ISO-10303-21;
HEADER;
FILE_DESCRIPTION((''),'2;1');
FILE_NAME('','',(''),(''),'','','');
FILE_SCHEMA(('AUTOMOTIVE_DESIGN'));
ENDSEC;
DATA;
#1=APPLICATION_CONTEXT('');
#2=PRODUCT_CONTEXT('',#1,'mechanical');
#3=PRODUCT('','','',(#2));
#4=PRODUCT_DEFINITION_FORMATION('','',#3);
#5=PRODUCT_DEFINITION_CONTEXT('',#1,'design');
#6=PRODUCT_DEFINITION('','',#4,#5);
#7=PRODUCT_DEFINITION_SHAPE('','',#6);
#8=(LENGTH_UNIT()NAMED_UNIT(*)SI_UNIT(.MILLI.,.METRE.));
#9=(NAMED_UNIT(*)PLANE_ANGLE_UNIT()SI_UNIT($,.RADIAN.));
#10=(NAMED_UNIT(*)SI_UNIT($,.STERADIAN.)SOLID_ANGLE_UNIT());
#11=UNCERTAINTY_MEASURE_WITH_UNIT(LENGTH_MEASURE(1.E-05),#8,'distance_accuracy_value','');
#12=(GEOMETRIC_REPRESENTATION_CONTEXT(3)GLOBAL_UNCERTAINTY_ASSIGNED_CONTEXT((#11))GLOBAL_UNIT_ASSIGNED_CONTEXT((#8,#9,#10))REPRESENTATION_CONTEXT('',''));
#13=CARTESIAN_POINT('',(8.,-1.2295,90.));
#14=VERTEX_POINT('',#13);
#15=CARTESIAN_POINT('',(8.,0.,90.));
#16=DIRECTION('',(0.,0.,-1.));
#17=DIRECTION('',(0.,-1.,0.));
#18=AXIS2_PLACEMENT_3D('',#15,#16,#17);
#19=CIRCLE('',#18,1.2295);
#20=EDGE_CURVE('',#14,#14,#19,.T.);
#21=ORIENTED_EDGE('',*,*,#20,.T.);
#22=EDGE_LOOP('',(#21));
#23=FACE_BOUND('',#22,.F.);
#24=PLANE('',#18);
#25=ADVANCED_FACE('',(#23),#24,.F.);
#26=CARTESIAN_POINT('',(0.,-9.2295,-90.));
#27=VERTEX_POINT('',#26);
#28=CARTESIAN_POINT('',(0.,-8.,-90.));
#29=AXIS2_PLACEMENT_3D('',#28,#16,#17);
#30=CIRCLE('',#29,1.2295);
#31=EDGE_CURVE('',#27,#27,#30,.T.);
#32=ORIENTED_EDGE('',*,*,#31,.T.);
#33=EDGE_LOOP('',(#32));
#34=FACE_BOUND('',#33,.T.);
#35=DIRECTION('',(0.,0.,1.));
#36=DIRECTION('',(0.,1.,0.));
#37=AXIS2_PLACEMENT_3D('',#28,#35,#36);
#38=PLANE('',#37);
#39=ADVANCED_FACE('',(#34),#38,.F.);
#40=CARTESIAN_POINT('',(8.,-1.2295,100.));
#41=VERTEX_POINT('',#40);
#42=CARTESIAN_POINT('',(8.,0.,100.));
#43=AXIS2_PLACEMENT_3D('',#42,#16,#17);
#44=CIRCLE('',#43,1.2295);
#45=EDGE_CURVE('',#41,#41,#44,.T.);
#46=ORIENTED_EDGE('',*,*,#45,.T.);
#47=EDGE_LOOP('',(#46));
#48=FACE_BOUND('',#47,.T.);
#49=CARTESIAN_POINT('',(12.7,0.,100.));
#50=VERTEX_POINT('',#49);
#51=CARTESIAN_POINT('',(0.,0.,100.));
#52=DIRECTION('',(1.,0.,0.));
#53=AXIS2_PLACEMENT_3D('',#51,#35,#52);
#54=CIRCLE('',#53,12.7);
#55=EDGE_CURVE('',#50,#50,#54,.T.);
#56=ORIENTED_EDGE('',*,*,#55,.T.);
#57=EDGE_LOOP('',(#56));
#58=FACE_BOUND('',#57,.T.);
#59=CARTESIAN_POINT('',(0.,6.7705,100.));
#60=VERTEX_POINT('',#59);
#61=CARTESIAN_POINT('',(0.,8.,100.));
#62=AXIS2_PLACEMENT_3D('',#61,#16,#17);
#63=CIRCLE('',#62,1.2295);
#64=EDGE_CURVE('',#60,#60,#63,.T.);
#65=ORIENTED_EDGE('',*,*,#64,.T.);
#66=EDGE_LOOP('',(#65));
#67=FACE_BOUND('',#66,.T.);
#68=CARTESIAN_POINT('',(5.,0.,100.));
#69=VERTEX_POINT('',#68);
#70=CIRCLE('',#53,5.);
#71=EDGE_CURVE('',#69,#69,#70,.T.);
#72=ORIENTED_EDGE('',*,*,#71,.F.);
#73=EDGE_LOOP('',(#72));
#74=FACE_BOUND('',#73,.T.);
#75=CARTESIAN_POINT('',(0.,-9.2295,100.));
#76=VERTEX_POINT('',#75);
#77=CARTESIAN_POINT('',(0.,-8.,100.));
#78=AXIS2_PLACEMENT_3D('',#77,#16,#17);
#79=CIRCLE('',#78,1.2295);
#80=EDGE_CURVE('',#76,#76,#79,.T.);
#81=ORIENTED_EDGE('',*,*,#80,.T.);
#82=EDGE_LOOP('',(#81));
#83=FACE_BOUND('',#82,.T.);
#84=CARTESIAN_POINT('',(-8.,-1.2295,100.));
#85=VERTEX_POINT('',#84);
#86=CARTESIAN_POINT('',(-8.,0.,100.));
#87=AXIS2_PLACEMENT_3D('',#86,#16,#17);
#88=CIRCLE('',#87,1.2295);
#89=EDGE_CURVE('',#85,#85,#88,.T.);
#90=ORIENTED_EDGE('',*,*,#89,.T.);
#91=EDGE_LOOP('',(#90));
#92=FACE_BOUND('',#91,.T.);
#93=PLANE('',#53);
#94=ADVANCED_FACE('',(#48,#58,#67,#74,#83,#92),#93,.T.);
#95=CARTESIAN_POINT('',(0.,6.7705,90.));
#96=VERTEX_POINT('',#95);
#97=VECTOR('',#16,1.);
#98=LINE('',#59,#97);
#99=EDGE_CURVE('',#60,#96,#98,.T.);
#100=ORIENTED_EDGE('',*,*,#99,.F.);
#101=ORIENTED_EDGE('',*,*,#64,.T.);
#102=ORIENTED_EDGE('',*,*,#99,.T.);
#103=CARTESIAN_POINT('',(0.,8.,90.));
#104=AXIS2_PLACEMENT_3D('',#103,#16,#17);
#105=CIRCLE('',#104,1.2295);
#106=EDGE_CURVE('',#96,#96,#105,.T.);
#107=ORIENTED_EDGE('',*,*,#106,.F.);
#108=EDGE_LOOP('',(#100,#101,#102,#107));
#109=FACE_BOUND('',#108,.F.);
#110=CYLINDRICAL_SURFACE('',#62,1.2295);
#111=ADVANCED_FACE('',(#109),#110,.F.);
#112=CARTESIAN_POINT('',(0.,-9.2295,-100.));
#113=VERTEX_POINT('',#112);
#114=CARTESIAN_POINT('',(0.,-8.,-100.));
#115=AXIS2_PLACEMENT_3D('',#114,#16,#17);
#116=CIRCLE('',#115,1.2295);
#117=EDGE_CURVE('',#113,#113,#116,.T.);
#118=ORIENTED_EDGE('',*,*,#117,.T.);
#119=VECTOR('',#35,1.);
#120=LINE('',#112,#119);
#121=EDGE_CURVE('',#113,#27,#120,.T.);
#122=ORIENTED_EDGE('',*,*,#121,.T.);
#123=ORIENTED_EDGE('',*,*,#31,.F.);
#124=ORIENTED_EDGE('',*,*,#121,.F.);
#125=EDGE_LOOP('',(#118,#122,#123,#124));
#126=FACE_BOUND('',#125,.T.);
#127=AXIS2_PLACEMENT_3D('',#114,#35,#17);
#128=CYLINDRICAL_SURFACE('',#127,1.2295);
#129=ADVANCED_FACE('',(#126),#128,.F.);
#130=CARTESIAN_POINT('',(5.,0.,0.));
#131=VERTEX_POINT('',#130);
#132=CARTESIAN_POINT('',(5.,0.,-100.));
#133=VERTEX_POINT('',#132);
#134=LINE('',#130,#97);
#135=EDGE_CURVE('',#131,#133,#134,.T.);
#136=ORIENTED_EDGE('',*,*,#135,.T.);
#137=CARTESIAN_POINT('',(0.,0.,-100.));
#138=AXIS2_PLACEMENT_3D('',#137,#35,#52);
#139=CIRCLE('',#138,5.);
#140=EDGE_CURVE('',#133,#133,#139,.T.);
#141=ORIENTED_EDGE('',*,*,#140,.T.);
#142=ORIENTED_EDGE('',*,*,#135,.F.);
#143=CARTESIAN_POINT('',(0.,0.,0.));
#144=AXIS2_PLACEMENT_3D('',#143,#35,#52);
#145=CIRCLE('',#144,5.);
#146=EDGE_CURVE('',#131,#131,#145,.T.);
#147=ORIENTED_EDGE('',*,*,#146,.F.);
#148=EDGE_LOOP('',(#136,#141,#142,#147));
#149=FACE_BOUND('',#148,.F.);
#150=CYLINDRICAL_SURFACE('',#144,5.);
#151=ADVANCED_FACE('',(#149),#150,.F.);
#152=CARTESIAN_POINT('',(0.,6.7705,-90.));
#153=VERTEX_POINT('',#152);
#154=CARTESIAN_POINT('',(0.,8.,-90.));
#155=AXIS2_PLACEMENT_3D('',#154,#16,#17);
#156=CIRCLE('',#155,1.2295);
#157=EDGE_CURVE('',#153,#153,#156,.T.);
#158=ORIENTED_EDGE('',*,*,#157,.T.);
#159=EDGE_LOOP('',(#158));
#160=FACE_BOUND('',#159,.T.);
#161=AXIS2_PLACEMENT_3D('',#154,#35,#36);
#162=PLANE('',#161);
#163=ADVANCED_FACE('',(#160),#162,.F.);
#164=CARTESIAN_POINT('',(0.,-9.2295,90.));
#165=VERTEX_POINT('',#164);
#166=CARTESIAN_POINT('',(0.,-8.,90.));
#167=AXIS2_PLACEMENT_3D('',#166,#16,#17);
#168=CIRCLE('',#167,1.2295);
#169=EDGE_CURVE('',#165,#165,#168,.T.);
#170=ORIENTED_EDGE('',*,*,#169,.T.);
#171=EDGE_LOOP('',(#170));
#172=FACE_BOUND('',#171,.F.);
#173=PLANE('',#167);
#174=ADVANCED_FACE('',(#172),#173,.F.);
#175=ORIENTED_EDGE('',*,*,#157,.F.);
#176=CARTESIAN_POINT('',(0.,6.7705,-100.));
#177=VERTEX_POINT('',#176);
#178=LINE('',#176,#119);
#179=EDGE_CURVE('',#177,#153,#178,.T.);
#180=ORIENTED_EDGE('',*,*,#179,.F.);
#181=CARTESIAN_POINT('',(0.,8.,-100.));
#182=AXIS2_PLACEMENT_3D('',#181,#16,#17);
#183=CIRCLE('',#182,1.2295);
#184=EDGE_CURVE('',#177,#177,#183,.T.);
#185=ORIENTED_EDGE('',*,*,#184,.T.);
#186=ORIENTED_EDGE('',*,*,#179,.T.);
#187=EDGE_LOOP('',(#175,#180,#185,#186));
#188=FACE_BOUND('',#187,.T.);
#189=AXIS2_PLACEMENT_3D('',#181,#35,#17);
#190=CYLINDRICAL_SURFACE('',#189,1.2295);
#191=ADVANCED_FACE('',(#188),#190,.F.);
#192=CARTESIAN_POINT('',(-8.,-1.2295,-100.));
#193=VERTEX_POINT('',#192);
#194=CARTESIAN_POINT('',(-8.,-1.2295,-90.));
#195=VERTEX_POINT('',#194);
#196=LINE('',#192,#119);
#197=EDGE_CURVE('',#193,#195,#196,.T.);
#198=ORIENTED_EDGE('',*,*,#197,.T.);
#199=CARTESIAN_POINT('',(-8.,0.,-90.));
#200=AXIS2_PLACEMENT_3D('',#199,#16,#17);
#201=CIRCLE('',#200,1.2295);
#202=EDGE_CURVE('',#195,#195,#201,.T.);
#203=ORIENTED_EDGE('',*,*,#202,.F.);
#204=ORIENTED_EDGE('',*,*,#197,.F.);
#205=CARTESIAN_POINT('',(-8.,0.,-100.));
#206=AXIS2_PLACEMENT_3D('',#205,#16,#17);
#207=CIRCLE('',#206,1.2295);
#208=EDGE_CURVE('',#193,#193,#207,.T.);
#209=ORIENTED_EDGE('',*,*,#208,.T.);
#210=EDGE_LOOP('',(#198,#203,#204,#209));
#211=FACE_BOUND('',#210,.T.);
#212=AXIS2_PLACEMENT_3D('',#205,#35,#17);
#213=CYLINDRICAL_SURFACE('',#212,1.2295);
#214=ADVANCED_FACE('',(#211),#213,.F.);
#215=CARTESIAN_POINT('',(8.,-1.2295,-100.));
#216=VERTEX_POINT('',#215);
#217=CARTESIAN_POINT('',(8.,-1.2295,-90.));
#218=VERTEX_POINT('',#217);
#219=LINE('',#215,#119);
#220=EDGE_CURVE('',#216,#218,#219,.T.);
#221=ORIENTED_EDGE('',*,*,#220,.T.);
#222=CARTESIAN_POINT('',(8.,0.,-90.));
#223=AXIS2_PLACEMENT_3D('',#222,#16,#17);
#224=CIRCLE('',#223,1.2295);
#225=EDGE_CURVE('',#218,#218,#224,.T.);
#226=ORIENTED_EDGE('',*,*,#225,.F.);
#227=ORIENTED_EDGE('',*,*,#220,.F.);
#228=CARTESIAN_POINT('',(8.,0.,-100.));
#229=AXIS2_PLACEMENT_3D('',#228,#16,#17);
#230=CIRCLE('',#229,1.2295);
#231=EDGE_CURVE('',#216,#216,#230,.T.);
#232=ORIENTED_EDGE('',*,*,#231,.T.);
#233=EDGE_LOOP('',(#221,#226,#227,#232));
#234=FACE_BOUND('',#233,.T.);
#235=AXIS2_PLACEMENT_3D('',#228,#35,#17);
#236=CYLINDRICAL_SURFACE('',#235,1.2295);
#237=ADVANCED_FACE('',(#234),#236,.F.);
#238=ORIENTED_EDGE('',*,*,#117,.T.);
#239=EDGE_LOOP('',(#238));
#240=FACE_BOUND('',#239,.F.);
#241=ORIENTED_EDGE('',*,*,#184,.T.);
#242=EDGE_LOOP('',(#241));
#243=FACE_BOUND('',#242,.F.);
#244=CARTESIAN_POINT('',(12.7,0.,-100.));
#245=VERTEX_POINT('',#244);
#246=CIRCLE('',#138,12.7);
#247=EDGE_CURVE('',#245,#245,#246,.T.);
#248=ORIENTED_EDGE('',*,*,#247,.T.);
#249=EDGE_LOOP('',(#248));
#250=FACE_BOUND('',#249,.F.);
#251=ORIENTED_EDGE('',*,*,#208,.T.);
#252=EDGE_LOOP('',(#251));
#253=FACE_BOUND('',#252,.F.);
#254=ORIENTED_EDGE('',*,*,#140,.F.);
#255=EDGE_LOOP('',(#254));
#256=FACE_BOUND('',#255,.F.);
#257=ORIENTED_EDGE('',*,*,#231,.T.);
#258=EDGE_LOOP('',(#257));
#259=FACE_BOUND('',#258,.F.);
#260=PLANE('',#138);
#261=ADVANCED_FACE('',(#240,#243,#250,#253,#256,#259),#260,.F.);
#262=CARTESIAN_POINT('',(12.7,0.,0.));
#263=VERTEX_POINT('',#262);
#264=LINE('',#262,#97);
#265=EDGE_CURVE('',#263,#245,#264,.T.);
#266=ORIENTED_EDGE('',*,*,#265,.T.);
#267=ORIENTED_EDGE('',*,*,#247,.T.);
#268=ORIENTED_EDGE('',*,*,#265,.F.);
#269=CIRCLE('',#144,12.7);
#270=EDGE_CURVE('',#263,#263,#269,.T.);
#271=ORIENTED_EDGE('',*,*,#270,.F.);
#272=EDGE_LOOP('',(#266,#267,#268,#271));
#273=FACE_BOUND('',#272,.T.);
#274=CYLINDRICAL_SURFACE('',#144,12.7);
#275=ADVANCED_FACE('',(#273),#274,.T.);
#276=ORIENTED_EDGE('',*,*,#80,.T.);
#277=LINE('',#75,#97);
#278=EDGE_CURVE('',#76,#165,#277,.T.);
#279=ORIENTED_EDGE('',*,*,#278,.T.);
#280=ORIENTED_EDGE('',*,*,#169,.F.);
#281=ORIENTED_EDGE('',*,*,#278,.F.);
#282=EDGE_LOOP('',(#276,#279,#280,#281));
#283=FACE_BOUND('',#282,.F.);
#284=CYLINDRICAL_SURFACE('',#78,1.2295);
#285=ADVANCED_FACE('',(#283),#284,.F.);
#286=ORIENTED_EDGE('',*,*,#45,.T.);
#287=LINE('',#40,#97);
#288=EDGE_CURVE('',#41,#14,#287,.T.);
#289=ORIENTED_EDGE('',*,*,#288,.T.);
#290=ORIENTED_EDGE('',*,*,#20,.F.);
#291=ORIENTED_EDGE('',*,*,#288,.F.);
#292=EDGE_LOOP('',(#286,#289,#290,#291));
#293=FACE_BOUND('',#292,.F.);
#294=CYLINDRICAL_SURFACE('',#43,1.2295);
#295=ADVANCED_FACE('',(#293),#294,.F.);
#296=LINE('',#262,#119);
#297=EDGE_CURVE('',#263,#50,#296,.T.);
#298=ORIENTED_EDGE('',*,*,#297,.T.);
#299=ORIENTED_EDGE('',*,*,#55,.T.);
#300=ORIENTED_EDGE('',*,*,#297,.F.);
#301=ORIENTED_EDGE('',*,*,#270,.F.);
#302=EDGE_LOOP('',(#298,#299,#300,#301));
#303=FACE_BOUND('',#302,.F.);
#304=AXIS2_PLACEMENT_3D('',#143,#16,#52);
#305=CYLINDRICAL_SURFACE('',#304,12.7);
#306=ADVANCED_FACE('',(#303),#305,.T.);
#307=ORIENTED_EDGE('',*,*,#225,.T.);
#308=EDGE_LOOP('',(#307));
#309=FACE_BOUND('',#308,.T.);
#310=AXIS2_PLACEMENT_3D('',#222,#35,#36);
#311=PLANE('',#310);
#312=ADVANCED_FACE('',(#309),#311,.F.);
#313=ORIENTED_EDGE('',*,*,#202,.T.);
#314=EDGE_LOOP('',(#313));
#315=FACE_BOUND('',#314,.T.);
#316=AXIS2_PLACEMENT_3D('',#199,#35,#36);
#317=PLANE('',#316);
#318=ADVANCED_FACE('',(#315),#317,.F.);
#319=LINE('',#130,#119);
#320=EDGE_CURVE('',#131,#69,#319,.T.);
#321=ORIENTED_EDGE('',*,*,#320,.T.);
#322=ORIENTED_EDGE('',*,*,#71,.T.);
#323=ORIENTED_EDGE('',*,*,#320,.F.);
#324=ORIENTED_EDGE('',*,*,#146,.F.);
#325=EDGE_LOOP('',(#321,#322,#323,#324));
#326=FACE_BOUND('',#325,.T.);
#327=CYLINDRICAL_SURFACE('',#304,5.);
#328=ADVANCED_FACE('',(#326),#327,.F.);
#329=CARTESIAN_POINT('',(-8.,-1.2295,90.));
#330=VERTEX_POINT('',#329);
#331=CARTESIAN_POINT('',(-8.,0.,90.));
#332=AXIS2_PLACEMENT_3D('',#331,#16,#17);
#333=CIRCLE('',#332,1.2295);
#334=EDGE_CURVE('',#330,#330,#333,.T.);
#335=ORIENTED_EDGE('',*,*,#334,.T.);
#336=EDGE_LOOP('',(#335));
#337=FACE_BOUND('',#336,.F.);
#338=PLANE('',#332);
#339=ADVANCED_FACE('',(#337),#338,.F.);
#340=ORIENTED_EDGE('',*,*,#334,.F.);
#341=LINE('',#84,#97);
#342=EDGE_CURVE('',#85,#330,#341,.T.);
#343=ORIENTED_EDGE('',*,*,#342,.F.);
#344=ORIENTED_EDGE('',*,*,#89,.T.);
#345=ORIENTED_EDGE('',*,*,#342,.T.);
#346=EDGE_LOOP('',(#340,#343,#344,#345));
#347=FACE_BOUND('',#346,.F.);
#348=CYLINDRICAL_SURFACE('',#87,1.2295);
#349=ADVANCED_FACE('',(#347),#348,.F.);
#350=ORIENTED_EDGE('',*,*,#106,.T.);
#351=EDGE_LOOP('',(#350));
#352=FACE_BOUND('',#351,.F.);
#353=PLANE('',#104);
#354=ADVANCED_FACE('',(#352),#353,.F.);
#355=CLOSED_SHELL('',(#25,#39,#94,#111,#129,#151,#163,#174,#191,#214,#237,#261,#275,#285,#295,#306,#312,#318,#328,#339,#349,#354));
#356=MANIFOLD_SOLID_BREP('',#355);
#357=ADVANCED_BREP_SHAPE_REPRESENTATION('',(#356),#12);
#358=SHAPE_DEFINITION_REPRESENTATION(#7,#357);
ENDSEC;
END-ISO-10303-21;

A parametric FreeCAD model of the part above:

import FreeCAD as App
import Part
import Sketcher

V = App.Vector
Q = App.Units.Quantity

doc = App.newDocument("Part")
body = doc.addObject("PartDesign::Body", "Body")

sketch1 = body.newObject("Sketcher::SketchObject", "Sketch")
sketch1.AttachmentSupport = (doc.getObject("XY_Plane"), [""])
sketch1.MapMode = "FlatFace"
sketch1.addGeometry(Part.Circle(V(0, 0, 0), V(0, 0, 1), 12.7), False)
sketch1.addGeometry(Part.Circle(V(0, 0, 0), V(0, 0, 1), 5), False)
sketch1.addConstraint(Sketcher.Constraint("Coincident", 0, 3, -1, 1))
sketch1.addConstraint(Sketcher.Constraint("Coincident", 1, 3, -1, 1))
sketch1.addConstraint(Sketcher.Constraint("Diameter", 0, Q("1 in")))
sketch1.addConstraint(Sketcher.Constraint("Diameter", 1, Q("0.3937 in")))
pad1 = body.newObject("PartDesign::Pad", "Pad")
pad1.Profile = sketch1
pad1.Length = 200
pad1.Midplane = True

sketch2 = body.newObject("Sketcher::SketchObject", "Sketch001")
sketch2.AttachmentSupport = (doc.getObject("XY_Plane"), [""])
sketch2.MapMode = "FlatFace"
sketch2.AttachmentOffset = App.Placement(V(0, 0, 3.9370079 * 25.4), App.Rotation())
sketch2.addGeometry(Part.Circle(V(0, 8, 0), V(0, 0, 1), 1.2295), False)
sketch2.addGeometry(Part.Circle(V(8, 0, 0), V(0, 0, 1), 1.2295), False)
sketch2.addGeometry(Part.Circle(V(0, -8, 0), V(0, 0, 1), 1.2295), False)
sketch2.addGeometry(Part.Circle(V(-8, 0, 0), V(0, 0, 1), 1.2295), False)
sketch2.addConstraint(Sketcher.Constraint("Equal", 0, 1))
sketch2.addConstraint(Sketcher.Constraint("Equal", 1, 2))
sketch2.addConstraint(Sketcher.Constraint("Equal", 2, 3))
sketch2.addConstraint(Sketcher.Constraint("Symmetric", 0, 3, 2, 3, -1, 1))
sketch2.addConstraint(Sketcher.Constraint("Symmetric", 1, 3, 3, 3, -1, 1))
sketch2.addConstraint(Sketcher.Constraint("PointOnObject", 0, 3, -2))
sketch2.addConstraint(Sketcher.Constraint("PointOnObject", 1, 3, -1))
sketch2.addConstraint(Sketcher.Constraint("Diameter", 0, Q("0.0968 in")))
sketch2.addConstraint(Sketcher.Constraint("DistanceY", -1, 1, 0, 3, 8.0))
sketch2.addConstraint(Sketcher.Constraint("DistanceX", -1, 1, 1, 3, 8.0))
doc.recompute()
hole = body.newObject("PartDesign::Hole", "Hole")
hole.Profile = sketch2
hole.ThreadType = "None"
hole.Diameter = Q("0.096811 in")
hole.DepthType = "Dimension"
hole.Depth = Q("0.3937008 in")
hole.DrillPoint = "Flat"
doc.recompute()

mirrored = body.newObject("PartDesign::Mirrored", "Mirrored")
mirrored.Originals = [hole]
mirrored.MirrorPlane = (doc.getObject("XY_Plane"), [""])
body.Tip = mirrored

doc.recompute()
